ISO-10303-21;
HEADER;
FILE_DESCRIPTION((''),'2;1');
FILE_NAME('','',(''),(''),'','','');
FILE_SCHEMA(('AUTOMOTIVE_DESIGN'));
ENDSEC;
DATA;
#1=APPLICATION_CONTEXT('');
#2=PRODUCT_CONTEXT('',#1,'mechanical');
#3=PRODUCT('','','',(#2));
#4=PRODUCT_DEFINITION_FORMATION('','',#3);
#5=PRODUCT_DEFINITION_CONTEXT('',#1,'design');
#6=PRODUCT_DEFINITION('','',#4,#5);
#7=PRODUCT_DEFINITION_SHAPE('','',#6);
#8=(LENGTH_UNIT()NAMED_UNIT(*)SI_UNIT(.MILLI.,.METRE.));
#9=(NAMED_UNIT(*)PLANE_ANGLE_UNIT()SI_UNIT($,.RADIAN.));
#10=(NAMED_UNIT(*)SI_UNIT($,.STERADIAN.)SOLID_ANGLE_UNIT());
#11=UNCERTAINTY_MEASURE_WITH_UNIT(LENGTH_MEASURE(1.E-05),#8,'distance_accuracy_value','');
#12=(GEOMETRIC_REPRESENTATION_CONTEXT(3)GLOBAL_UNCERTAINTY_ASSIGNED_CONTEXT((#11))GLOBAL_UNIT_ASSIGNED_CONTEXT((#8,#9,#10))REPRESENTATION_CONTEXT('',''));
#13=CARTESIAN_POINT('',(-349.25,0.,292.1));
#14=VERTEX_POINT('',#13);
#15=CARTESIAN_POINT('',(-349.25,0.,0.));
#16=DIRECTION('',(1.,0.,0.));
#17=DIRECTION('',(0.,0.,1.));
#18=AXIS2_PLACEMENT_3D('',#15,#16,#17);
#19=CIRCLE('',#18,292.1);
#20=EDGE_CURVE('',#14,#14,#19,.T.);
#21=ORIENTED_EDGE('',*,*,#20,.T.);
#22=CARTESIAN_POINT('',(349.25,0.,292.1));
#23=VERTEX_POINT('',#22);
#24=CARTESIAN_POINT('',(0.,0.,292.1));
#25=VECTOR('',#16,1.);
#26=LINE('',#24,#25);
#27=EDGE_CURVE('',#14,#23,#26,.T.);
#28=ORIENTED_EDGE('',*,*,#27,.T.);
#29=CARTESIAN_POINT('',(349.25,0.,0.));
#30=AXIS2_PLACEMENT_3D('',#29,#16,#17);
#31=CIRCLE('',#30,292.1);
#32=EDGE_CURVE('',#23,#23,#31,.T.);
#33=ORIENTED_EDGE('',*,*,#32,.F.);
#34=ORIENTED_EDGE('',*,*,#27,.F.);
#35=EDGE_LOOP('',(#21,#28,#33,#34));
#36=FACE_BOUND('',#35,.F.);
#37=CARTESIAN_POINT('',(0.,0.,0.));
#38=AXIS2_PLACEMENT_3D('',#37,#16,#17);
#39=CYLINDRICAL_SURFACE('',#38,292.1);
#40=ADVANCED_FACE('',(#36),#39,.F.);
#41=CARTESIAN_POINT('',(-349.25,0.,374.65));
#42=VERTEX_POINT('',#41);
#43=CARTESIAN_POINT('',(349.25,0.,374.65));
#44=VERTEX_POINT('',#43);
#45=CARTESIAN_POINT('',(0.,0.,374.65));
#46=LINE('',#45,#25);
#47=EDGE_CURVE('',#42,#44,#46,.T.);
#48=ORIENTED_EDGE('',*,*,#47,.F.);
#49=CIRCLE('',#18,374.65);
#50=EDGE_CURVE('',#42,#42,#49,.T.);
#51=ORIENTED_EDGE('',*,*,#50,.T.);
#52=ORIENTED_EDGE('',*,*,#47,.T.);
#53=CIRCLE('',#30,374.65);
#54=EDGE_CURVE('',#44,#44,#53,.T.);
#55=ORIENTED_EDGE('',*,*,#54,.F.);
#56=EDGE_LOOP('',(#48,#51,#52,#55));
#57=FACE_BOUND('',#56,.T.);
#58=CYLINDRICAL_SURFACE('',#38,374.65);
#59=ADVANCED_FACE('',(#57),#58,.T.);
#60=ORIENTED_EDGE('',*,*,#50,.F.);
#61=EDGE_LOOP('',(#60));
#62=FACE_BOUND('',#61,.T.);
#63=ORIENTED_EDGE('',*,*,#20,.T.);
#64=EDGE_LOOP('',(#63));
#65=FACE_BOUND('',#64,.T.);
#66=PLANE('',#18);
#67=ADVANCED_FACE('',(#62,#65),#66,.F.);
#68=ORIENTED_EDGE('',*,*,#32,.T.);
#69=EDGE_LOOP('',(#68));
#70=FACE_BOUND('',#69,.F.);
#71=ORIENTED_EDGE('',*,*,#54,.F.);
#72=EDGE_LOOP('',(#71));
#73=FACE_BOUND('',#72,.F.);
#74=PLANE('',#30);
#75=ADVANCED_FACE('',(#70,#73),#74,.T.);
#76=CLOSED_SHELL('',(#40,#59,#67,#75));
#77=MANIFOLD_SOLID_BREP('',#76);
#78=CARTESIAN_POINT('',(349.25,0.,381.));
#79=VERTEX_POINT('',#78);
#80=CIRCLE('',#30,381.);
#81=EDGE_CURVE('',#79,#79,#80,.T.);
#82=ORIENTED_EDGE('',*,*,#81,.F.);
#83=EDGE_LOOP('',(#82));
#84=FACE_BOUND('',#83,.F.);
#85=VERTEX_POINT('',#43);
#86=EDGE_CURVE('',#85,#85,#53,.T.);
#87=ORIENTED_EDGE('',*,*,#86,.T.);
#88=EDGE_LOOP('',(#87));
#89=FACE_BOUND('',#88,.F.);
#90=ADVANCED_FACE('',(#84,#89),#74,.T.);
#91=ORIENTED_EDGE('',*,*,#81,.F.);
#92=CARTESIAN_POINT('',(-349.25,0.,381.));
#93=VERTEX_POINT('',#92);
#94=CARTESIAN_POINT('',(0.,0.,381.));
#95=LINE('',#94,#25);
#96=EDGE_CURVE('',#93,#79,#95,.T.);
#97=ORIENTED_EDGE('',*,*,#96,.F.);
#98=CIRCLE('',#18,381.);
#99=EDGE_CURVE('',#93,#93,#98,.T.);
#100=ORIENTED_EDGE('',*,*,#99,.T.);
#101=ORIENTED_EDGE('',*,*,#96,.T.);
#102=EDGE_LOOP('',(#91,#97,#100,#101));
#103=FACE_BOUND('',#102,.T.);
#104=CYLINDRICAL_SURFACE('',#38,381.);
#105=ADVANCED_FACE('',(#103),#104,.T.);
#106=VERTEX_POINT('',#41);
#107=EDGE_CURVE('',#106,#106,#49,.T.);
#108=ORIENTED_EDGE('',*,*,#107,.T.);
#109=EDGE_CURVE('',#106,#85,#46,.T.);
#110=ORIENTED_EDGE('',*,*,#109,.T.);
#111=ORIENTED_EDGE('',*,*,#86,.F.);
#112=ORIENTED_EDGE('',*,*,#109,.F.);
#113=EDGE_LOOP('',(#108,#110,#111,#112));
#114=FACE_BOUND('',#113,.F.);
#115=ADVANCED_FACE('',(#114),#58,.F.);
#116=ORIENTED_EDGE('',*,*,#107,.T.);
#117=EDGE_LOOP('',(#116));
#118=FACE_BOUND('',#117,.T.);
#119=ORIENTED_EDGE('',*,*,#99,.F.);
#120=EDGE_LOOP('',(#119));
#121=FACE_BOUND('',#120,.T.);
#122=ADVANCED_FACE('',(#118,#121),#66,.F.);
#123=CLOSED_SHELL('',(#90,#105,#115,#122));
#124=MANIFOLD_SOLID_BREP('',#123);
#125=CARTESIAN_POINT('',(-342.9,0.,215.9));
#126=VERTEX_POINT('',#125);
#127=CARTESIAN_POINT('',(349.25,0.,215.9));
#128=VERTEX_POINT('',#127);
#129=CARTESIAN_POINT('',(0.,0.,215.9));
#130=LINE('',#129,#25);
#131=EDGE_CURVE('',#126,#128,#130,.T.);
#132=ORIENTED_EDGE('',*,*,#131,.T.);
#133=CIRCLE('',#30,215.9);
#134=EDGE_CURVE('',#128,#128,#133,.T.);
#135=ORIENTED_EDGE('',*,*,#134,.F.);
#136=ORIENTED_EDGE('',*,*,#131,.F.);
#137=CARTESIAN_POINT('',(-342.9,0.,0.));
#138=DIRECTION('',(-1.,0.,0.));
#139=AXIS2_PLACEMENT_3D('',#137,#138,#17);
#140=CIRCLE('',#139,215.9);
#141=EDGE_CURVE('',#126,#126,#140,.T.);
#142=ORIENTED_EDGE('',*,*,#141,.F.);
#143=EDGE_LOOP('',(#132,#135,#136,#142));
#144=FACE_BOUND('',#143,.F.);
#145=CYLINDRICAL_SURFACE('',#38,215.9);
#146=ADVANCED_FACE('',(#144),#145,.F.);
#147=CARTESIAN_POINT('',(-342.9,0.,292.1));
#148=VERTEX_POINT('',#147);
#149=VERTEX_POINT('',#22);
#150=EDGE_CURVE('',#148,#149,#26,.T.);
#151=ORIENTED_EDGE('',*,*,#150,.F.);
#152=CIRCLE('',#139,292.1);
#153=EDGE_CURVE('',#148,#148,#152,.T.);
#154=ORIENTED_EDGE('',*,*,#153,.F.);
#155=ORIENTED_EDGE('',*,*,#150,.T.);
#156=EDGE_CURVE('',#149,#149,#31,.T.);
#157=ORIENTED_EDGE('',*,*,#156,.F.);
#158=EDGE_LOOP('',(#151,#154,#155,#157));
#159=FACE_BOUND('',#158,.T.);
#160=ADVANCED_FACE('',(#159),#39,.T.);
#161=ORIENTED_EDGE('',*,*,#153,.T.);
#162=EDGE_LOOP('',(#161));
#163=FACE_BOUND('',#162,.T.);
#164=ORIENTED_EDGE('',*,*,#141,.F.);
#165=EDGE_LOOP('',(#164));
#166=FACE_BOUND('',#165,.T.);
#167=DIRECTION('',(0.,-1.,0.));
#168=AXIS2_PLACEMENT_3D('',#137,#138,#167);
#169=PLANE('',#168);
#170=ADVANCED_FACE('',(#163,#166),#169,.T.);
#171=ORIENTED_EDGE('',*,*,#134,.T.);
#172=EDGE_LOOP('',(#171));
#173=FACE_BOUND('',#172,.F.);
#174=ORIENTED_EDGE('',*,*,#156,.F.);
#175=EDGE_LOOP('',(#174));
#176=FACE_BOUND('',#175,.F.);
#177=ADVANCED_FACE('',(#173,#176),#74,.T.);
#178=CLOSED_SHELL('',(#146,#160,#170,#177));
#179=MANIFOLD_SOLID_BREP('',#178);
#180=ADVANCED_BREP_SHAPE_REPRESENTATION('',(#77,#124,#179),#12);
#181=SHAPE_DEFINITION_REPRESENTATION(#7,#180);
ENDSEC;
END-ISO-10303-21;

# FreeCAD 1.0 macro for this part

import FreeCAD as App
import Part
import Sketcher
from FreeCAD import Vector
Q = App.Units.Quantity


def add_polygon(sketch, points):
    """Adds a closed chain of lines whose ends are joined by coincident constraints."""
    first, n = sketch.GeometryCount, len(points)
    for a, b in zip(points, points[1:] + points[:1]):
        sketch.addGeometry(Part.LineSegment(App.Vector(*a, 0), App.Vector(*b, 0)), False)
    for i in range(n):
        sketch.addConstraint(Sketcher.Constraint("Coincident", first + i, 2, first + (i + 1) % n, 1))

doc = App.newDocument("Part")
body = doc.addObject("PartDesign::Body", "Body")

sketch1 = doc.addObject("Sketcher::SketchObject", "Sketch")
body.addObject(sketch1)
sketch1.AttachmentSupport = (doc.XZ_Plane, [""])
sketch1.MapMode = "FlatFace"
add_polygon(sketch1, [(-349, 292), (-349, 216), (349, 216), (349, 292)])
sketch1.addConstraint(Sketcher.Constraint("Vertical", 0))
sketch1.addConstraint(Sketcher.Constraint("Horizontal", 1))
sketch1.addConstraint(Sketcher.Constraint("Vertical", 2))
sketch1.addConstraint(Sketcher.Constraint("Horizontal", 3))
sketch1.addConstraint(Sketcher.Constraint("DistanceY", 0, 2, 0, 1, Q("3 in")))
sketch1.addConstraint(Sketcher.Constraint("DistanceX", 1, 1, 1, 2, Q("27.5 in")))
sketch1.addConstraint(Sketcher.Constraint("DistanceY", -1, 1, 0, 2, Q("8.5 in")))
sketch1.addConstraint(Sketcher.Constraint("DistanceX", 0, 2, -1, 1, Q("13.75 in")))
revolution = doc.addObject("PartDesign::Revolution", "Revolution")
body.addObject(revolution)
revolution.Profile = sketch1
revolution.ReferenceAxis = (sketch1, ["H_Axis"])
revolution.Angle = 360

sketch2 = doc.addObject("Sketcher::SketchObject", "Sketch001")
body.addObject(sketch2)
sketch2.AttachmentSupport = (doc.YZ_Plane, [""])
sketch2.MapMode = "FlatFace"
sketch2.AttachmentOffset = App.Placement(Vector(0, 0, -13.75 * 25.4), App.Rotation())
sketch2.addGeometry(Part.Circle(Vector(0, 0, 0), Vector(0, 0, 1), 292), False)
sketch2.addGeometry(Part.Circle(Vector(0, 0, 0), Vector(0, 0, 1), 216), False)
sketch2.addConstraint(Sketcher.Constraint("Coincident", 0, 3, -1, 1))
sketch2.addConstraint(Sketcher.Constraint("Coincident", 1, 3, -1, 1))
sketch2.addConstraint(Sketcher.Constraint("Diameter", 0, Q("23 in")))
sketch2.addConstraint(Sketcher.Constraint("Diameter", 1, Q("17 in")))
pocket1 = doc.addObject("PartDesign::Pocket", "Pocket")
body.addObject(pocket1)
pocket1.Profile = sketch2
pocket1.Length = Q("0.25 in")
pocket1.Reversed = True
body2 = doc.addObject("PartDesign::Body", "Body001")

sketch3 = doc.addObject("Sketcher::SketchObject", "Sketch002")
body2.addObject(sketch3)
sketch3.AttachmentSupport = (doc.getObject("XZ_Plane001"), [""])
sketch3.MapMode = "FlatFace"
add_polygon(sketch3, [(-349, 375), (-349, 292), (349, 292), (349, 375)])
sketch3.addConstraint(Sketcher.Constraint("Vertical", 0))
sketch3.addConstraint(Sketcher.Constraint("Horizontal", 1))
sketch3.addConstraint(Sketcher.Constraint("Vertical", 2))
sketch3.addConstraint(Sketcher.Constraint("Horizontal", 3))
sketch3.addConstraint(Sketcher.Constraint("DistanceX", 1, 1, 1, 2, Q("27.5 in")))
sketch3.addConstraint(Sketcher.Constraint("DistanceY", 0, 2, 0, 1, Q("3.25 in")))
sketch3.addConstraint(Sketcher.Constraint("DistanceY", -1, 1, 0, 2, Q("11.5 in")))
sketch3.addConstraint(Sketcher.Constraint("DistanceX", 0, 2, -1, 1, Q("13.75 in")))
revolution2 = doc.addObject("PartDesign::Revolution", "Revolution001")
body2.addObject(revolution2)
revolution2.Profile = sketch3
revolution2.ReferenceAxis = (sketch3, ["H_Axis"])
revolution2.Angle = 360
body3 = doc.addObject("PartDesign::Body", "Body002")

sketch4 = doc.addObject("Sketcher::SketchObject", "Sketch003")
body3.addObject(sketch4)
sketch4.AttachmentSupport = (doc.getObject("XZ_Plane002"), [""])
sketch4.MapMode = "FlatFace"
add_polygon(sketch4, [(-349, 381), (-349, 375), (349, 375), (349, 381)])
sketch4.addConstraint(Sketcher.Constraint("Vertical", 0))
sketch4.addConstraint(Sketcher.Constraint("Horizontal", 1))
sketch4.addConstraint(Sketcher.Constraint("Vertical", 2))
sketch4.addConstraint(Sketcher.Constraint("Horizontal", 3))
sketch4.addConstraint(Sketcher.Constraint("DistanceX", 1, 1, 1, 2, Q("27.5 in")))
sketch4.addConstraint(Sketcher.Constraint("DistanceY", -1, 1, 2, 2, Q("15 in")))
sketch4.addConstraint(Sketcher.Constraint("DistanceY", 0, 2, 0, 1, Q("0.25 in")))
sketch4.addConstraint(Sketcher.Constraint("DistanceX", 0, 2, -1, 1, Q("13.75 in")))
revolution3 = doc.addObject("PartDesign::Revolution", "Revolution002")
body3.addObject(revolution3)
revolution3.Profile = sketch4
revolution3.ReferenceAxis = (sketch4, ["H_Axis"])
revolution3.Angle = 360

doc.recompute()
